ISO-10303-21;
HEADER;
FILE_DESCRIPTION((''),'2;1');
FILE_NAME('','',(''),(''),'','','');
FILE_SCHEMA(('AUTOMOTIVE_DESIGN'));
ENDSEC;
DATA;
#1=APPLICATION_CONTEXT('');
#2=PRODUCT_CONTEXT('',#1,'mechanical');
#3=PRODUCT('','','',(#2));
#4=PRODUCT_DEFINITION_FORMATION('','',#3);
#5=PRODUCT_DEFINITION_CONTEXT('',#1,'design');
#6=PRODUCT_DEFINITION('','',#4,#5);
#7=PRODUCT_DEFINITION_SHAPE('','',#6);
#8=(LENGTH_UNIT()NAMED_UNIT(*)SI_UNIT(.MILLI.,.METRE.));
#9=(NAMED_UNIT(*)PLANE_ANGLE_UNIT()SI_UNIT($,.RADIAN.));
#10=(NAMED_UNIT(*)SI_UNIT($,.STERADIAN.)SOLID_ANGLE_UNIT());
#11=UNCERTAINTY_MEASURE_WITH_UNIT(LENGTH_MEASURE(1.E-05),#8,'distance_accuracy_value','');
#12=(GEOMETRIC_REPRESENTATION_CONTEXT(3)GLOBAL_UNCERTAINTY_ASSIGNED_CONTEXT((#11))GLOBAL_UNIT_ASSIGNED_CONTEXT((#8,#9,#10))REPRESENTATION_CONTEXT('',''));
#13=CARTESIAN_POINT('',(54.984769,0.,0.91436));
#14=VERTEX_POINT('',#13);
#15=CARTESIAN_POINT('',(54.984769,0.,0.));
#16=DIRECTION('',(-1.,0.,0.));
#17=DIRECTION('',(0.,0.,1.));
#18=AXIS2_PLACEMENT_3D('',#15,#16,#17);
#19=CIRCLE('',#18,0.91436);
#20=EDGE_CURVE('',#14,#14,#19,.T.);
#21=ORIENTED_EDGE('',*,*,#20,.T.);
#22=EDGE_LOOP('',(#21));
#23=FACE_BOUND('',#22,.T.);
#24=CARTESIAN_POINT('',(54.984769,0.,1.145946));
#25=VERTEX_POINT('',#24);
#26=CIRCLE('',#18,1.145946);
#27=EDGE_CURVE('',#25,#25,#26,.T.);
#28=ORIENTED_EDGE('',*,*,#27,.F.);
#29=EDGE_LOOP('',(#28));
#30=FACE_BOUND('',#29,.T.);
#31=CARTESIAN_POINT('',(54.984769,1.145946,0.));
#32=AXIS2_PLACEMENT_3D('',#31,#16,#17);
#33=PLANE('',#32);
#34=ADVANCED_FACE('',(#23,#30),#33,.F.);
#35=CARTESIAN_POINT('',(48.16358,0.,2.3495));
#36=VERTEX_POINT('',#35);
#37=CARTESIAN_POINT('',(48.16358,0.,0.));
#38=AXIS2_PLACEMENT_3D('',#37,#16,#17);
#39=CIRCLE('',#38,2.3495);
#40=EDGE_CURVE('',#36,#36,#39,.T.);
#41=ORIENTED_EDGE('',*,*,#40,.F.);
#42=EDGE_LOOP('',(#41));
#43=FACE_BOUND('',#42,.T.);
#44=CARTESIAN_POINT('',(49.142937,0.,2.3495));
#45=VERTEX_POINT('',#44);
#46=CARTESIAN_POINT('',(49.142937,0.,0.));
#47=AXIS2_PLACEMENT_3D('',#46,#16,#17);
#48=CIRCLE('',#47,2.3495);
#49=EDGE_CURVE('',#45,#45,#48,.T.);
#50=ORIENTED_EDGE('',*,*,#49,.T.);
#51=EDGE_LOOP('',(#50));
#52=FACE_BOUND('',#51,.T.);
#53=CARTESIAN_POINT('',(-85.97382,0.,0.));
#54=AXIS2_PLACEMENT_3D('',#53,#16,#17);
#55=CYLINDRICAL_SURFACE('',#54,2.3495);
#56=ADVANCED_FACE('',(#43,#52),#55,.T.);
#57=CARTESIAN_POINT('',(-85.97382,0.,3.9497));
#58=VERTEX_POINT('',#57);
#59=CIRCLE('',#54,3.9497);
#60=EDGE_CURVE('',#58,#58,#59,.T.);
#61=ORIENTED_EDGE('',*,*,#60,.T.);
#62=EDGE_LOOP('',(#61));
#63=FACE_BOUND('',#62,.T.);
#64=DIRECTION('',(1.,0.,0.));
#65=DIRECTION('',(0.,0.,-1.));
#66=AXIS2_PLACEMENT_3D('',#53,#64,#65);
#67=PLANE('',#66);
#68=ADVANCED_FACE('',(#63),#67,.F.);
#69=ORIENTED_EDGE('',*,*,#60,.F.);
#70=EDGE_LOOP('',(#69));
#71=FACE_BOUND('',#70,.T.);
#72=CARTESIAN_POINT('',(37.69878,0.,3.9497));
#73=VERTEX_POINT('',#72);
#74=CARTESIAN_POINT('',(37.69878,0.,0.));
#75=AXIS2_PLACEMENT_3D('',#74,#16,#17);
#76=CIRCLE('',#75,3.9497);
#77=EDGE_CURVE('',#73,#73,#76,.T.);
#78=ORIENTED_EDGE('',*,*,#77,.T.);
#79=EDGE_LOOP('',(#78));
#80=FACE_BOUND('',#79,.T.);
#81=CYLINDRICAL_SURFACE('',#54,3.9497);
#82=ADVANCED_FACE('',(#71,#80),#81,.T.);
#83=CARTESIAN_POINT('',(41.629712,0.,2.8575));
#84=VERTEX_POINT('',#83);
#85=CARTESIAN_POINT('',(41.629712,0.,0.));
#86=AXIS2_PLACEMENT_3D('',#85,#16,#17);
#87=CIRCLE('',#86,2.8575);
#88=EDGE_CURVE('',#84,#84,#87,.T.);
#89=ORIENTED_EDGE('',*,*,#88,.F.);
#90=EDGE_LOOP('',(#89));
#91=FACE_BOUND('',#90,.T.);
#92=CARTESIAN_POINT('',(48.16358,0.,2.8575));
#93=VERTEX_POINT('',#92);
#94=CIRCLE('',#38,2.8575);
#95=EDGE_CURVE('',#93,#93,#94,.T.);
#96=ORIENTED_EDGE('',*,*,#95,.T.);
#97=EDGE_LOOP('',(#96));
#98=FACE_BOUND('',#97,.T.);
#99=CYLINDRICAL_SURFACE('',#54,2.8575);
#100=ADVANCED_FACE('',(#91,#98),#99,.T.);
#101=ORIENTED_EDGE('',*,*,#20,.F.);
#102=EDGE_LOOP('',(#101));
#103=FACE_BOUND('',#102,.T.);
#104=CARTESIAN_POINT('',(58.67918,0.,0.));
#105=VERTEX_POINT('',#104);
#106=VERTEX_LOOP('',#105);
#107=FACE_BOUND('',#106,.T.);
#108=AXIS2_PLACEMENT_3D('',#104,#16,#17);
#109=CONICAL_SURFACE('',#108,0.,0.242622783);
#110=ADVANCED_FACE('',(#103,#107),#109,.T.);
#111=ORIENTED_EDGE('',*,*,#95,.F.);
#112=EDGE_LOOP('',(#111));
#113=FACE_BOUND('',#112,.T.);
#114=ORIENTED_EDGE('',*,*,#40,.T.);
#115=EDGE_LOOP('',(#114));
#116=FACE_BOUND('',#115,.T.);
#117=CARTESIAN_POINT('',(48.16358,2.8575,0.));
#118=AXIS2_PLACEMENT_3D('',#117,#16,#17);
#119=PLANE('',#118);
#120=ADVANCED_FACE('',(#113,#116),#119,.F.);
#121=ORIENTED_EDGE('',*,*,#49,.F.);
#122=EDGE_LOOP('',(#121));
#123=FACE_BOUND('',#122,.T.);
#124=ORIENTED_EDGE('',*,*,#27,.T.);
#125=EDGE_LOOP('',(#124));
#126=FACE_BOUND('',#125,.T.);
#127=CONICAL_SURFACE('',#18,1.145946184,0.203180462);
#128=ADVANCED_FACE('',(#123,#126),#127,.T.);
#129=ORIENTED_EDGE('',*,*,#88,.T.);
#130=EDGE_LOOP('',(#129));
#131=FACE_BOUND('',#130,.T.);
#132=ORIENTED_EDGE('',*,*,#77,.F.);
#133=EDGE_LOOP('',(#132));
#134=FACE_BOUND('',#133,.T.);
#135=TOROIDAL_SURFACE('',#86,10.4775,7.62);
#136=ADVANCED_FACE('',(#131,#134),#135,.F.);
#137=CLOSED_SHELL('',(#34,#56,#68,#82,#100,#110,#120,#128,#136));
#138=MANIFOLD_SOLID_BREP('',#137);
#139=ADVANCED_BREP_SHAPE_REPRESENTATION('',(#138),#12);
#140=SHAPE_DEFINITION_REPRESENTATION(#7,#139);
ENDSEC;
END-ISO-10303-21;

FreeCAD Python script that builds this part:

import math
import FreeCAD as App
import Part
import Sketcher
from FreeCAD import Vector
Q = App.Units.Quantity

doc = App.newDocument("Part")
body = doc.addObject("PartDesign::Body", "Body")

sketch1 = body.newObject("Sketcher::SketchObject", "Sketch")
sketch1.AttachmentSupport = (doc.getObject("XY_Plane"), [""])
sketch1.MapMode = "FlatFace"
sketch1.addGeometry([
    Part.LineSegment(Vector(-85.97, 3.95, 0), Vector(-85.97, 0, 0)),
    Part.LineSegment(Vector(-85.97, 0, 0), Vector(58.68, 0, 0)),
    Part.LineSegment(Vector(58.68, 0, 0), Vector(54.98, 0.91, 0)),
    Part.LineSegment(Vector(54.98, 0.91, 0), Vector(54.98, 1.15, 0)),
    Part.LineSegment(Vector(54.98, 1.15, 0), Vector(49.14, 2.35, 0)),
    Part.LineSegment(Vector(49.14, 2.35, 0), Vector(48.16, 2.35, 0)),
    Part.LineSegment(Vector(48.16, 2.35, 0), Vector(48.16, 2.86, 0)),
    Part.LineSegment(Vector(48.16, 2.86, 0), Vector(41.63, 2.86, 0)),
    Part.ArcOfCircle(Part.Circle(Vector(41.63, 10.48, 0), Vector(0, 0, 1), 7.62), math.radians(-121), math.radians(-90)),
    Part.LineSegment(Vector(37.7, 3.95, 0), Vector(-85.97, 3.95, 0)),
], False)
sketch1.addConstraint([
    Sketcher.Constraint("Coincident", 0, 2, 1, 1),
    Sketcher.Constraint("Coincident", 1, 2, 2, 1),
    Sketcher.Constraint("Coincident", 2, 2, 3, 1),
    Sketcher.Constraint("Coincident", 3, 2, 4, 1),
    Sketcher.Constraint("Coincident", 4, 2, 5, 1),
    Sketcher.Constraint("Coincident", 5, 2, 6, 1),
    Sketcher.Constraint("Coincident", 6, 2, 7, 1),
    Sketcher.Constraint("Tangent", 7, 2, 8, 2),
    Sketcher.Constraint("Coincident", 8, 1, 9, 1),
    Sketcher.Constraint("Coincident", 9, 2, 0, 1),
    Sketcher.Constraint("Vertical", 0),
    Sketcher.Constraint("Horizontal", 1),
    Sketcher.Constraint("Vertical", 3),
    Sketcher.Constraint("Horizontal", 5),
    Sketcher.Constraint("Vertical", 6),
    Sketcher.Constraint("Horizontal", 7),
    Sketcher.Constraint("Horizontal", 9),
    Sketcher.Constraint("PointOnObject", 0, 2, -1),
    Sketcher.Constraint("Radius", 8, Q("0.3 in")),
    Sketcher.Constraint("DistanceY", 6, 1, 6, 2, Q("0.02 in")),
    Sketcher.Constraint("DistanceX", 1, 1, 1, 2, Q("5.695 in")),
    Sketcher.Constraint("DistanceX", 9, 2, 9, 1, Q("4.869 in")),
    Sketcher.Constraint("DistanceY", 0, 2, 0, 1, Q("0.1555 in")),
    Sketcher.Constraint("DistanceX", 5, 2, 1, 2, Q("0.414 in")),
    Sketcher.Constraint("DistanceY", 7, 2, 8, 1, Q("0.043 in")),
    Sketcher.Constraint("Distance", 2, Q("3.80588 mm")),
    Sketcher.Constraint("DistanceX", 5, 2, 5, 1, Q("0.979357 mm")),
    Sketcher.Constraint("DistanceY", 3, 1, 3, 2, Q("0.231586 mm")),
    Sketcher.Constraint("DistanceX", -1, 1, 8, 3, Q("41.629712 mm")),
    Sketcher.Constraint("DistanceX", -1, 1, 2, 2, Q("54.984769 mm")),
])
revolution = body.newObject("PartDesign::Revolution", "Revolution")
revolution.Profile = sketch1
revolution.ReferenceAxis = (sketch1, ["H_Axis"])
revolution.Angle = 360

doc.recompute()
